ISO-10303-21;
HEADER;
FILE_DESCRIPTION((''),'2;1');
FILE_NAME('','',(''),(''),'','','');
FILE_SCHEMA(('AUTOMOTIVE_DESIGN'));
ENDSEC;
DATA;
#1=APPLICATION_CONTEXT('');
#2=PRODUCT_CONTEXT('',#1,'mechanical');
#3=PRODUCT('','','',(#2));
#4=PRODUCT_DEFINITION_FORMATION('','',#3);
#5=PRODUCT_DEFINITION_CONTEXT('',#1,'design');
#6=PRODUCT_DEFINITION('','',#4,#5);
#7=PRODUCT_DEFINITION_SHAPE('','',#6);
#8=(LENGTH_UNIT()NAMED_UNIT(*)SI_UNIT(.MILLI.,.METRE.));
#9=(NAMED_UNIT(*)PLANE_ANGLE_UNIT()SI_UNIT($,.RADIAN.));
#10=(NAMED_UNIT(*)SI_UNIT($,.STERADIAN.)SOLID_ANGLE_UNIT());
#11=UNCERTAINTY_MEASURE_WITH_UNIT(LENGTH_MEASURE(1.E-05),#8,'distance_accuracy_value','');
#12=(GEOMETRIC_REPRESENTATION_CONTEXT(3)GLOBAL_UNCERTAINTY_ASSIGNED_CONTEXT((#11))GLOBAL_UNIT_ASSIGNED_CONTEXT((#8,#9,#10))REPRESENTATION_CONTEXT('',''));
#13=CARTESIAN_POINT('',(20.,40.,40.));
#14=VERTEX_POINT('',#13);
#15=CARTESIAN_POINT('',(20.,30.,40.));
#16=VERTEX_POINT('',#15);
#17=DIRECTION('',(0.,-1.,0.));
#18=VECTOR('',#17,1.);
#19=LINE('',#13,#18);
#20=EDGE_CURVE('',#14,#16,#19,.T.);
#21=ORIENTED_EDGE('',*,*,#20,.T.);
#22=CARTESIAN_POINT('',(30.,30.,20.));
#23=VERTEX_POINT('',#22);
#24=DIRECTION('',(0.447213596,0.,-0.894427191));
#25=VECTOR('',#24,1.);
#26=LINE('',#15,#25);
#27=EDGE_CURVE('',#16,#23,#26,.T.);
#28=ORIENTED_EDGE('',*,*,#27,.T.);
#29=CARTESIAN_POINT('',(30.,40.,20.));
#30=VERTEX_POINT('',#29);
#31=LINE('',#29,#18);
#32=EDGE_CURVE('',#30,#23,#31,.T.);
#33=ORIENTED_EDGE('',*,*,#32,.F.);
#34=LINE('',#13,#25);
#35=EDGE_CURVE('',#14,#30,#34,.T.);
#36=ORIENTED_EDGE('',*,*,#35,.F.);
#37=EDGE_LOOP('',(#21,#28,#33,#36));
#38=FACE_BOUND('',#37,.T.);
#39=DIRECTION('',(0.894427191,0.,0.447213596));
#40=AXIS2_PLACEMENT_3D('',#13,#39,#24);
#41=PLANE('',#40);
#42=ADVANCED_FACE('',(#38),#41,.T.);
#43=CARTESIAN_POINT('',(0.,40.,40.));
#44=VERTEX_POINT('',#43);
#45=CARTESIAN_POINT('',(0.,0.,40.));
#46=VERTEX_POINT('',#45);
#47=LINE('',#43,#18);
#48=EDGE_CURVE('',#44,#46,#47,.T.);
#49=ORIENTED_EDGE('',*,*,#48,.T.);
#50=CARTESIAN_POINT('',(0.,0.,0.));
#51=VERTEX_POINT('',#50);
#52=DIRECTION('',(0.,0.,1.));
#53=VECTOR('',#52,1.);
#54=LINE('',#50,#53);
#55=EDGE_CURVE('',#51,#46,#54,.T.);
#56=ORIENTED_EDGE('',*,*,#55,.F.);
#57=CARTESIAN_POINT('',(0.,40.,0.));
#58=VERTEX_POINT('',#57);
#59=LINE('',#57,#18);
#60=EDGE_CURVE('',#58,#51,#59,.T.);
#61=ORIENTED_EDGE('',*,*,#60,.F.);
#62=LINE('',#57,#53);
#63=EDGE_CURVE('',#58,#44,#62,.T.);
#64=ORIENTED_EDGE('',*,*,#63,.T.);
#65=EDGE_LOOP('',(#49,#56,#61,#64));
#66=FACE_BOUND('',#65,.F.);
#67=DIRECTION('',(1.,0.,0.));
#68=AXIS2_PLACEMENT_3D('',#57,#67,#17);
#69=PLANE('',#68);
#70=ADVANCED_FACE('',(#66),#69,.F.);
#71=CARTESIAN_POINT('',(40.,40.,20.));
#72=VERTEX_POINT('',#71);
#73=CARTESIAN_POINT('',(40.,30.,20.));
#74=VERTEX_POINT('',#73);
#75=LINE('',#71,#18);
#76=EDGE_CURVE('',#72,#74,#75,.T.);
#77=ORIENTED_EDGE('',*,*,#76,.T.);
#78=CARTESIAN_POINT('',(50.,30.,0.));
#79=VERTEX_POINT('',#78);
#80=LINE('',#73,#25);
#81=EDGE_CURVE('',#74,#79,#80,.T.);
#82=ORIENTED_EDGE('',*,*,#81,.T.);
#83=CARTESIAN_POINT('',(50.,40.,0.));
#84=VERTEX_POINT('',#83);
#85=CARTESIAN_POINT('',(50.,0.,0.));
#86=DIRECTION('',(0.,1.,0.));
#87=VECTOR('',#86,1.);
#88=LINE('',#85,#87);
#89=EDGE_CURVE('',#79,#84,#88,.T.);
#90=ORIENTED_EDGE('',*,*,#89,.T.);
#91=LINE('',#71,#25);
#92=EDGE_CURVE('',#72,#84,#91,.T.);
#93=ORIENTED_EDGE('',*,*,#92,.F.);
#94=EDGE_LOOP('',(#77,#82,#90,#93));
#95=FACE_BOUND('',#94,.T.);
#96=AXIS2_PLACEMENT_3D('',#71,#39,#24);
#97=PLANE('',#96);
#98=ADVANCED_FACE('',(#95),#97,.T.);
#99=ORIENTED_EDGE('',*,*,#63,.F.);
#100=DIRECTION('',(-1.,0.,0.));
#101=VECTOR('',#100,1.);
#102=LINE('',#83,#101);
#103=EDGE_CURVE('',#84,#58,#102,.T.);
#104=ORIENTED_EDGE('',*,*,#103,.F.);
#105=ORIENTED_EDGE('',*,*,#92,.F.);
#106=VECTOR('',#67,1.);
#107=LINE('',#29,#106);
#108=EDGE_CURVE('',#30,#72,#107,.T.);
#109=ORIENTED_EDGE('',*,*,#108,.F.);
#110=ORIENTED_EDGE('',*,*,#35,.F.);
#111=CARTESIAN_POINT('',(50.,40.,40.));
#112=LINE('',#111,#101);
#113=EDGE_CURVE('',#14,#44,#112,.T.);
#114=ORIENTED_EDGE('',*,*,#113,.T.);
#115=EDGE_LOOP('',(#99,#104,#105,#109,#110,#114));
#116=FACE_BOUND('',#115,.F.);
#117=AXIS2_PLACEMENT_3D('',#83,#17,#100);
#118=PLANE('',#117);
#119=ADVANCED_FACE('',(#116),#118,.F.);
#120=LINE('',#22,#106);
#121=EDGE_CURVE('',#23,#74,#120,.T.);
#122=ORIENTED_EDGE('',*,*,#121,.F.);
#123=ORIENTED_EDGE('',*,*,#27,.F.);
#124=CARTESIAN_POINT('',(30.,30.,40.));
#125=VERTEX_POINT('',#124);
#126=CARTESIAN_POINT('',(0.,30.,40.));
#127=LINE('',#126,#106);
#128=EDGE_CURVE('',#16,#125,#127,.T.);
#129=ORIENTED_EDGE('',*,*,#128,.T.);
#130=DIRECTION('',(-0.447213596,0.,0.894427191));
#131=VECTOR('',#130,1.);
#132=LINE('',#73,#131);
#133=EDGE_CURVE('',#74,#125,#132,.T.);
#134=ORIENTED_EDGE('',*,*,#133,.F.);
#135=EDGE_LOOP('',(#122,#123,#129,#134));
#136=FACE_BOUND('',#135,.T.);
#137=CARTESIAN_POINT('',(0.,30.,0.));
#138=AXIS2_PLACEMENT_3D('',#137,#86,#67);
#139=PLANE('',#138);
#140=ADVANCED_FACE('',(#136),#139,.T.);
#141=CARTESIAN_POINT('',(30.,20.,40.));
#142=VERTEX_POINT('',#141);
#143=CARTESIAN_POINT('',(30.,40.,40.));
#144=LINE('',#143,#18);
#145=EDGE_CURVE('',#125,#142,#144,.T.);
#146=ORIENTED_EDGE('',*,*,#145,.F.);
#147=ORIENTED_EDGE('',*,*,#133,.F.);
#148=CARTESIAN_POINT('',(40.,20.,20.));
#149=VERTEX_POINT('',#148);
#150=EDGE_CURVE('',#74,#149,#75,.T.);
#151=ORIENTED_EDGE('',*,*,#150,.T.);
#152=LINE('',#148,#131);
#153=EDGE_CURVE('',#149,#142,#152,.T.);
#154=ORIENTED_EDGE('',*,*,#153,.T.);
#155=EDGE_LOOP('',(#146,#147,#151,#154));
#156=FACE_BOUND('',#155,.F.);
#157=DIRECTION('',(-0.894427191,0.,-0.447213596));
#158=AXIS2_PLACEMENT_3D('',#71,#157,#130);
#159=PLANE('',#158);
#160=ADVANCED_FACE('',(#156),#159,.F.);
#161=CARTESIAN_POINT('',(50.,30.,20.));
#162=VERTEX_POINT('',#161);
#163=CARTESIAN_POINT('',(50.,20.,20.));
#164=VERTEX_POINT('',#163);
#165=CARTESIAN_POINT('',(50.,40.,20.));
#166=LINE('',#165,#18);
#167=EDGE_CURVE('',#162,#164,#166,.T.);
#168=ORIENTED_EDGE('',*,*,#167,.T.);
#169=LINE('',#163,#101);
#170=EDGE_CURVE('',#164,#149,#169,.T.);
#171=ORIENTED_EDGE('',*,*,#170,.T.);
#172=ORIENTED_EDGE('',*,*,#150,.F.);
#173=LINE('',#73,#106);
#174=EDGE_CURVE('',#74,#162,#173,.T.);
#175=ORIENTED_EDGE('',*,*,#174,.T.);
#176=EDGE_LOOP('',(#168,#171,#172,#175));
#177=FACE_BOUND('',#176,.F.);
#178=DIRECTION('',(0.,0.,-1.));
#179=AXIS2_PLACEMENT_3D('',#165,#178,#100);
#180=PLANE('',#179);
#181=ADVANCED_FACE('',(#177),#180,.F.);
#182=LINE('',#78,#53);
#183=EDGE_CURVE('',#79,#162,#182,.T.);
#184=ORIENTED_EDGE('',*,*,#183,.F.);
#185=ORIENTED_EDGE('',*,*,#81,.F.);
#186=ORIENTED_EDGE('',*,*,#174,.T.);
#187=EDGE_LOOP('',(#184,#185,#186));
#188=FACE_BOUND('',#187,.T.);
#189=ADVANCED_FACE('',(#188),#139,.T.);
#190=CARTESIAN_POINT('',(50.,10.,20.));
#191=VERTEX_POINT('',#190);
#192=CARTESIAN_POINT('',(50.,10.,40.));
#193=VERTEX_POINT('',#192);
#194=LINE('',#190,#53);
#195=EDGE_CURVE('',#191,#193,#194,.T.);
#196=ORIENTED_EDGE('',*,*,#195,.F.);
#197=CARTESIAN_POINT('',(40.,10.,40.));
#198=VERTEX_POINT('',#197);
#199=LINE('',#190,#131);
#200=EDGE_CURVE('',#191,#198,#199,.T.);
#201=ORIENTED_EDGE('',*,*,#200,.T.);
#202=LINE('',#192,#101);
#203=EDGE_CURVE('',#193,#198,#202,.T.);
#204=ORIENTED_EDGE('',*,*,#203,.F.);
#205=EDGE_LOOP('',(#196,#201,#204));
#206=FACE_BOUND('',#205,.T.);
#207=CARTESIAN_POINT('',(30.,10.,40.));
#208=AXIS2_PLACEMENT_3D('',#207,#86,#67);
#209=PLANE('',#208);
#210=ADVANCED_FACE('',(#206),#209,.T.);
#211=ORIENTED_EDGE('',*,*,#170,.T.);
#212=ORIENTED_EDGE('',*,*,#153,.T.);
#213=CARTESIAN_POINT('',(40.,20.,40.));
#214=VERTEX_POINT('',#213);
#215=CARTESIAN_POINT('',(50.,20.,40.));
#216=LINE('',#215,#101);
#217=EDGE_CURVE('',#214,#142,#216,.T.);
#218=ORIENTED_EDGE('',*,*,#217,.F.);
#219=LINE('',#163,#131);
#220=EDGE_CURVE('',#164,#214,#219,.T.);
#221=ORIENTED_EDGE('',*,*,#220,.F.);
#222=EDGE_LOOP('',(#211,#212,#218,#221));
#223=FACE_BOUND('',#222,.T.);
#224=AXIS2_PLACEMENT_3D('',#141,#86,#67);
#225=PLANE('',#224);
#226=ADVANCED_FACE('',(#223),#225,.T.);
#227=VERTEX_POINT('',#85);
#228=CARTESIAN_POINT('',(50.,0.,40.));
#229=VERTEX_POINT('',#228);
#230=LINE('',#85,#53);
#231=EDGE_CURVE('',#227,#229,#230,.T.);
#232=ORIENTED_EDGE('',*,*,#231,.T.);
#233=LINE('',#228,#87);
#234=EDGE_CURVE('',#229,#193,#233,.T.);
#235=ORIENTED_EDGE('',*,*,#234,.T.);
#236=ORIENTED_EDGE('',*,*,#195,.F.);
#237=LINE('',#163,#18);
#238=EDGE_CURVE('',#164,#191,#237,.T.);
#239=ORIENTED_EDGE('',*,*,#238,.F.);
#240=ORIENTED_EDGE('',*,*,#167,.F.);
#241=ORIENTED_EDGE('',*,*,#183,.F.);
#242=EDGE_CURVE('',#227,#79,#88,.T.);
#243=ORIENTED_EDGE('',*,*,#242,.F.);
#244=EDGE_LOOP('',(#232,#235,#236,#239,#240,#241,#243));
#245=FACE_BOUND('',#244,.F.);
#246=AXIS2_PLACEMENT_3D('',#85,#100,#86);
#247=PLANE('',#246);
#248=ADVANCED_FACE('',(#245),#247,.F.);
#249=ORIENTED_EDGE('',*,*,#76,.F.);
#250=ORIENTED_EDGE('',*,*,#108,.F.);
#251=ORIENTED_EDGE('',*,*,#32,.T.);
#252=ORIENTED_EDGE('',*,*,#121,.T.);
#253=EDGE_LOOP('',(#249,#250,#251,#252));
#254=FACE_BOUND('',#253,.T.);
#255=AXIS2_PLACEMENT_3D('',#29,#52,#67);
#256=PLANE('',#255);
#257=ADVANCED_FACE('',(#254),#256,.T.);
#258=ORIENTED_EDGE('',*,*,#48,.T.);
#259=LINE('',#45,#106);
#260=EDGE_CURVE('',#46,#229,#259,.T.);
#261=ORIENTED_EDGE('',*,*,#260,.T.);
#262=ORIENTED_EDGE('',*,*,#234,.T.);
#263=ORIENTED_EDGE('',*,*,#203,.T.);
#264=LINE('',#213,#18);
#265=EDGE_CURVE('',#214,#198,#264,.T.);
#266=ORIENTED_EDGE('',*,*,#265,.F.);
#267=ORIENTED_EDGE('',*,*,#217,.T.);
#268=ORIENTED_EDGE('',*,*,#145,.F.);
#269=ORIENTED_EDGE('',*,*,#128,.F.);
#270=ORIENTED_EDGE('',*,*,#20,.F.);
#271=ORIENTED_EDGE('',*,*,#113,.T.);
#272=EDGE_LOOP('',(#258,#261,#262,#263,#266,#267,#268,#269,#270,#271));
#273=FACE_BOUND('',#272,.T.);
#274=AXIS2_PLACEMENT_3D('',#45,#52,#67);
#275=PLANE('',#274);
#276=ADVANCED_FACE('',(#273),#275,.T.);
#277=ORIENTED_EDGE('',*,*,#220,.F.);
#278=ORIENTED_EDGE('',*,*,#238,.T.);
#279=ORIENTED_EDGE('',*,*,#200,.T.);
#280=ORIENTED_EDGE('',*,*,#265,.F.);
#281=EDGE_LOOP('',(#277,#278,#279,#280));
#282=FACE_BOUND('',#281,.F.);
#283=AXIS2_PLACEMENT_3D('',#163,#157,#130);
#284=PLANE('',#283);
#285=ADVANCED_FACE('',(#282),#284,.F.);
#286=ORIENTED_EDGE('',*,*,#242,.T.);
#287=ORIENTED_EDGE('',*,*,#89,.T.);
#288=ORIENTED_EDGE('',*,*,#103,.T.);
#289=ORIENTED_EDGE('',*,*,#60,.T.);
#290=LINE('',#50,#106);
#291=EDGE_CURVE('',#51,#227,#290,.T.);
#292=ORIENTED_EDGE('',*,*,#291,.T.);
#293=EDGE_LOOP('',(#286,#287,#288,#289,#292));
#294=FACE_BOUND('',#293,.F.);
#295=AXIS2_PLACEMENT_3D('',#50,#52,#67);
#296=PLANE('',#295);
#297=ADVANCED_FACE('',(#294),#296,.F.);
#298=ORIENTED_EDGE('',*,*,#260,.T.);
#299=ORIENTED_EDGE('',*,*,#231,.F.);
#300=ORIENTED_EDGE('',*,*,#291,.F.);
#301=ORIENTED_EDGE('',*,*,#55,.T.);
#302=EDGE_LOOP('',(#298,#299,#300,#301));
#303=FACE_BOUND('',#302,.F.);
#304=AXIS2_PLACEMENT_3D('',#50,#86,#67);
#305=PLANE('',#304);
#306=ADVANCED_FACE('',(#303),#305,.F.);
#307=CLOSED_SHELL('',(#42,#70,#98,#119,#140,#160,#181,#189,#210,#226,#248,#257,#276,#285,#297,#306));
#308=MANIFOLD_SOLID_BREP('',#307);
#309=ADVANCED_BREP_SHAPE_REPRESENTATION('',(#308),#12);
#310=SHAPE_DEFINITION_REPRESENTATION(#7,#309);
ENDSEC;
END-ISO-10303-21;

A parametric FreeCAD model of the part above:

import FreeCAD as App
import Part
import Sketcher
Q = App.Units.Quantity


def add_polygon(sketch, points):
    """Adds a closed chain of lines whose ends are joined by coincident constraints."""
    first, n = sketch.GeometryCount, len(points)
    for a, b in zip(points, points[1:] + points[:1]):
        sketch.addGeometry(Part.LineSegment(App.Vector(*a, 0), App.Vector(*b, 0)), False)
    for i in range(n):
        sketch.addConstraint(Sketcher.Constraint("Coincident", first + i, 2, first + (i + 1) % n, 1))

doc = App.newDocument("Part")
body = doc.addObject("PartDesign::Body", "Body")

# Sketch on XY plane
sketch1 = body.newObject("Sketcher::SketchObject", "Sketch")
sketch1.AttachmentSupport = (doc.getObject("XY_Plane"), [""])
sketch1.MapMode = "FlatFace"
add_polygon(sketch1, [(0, 40), (0, 0), (50, 0), (50, 40)])  # lines 0-3
sketch1.addConstraint([
    Sketcher.Constraint("Vertical", 0),
    Sketcher.Constraint("Horizontal", 1),
    Sketcher.Constraint("Vertical", 2),
    Sketcher.Constraint("Horizontal", 3),
    Sketcher.Constraint("Coincident", 0, 2, -1, 1),
    Sketcher.Constraint("DistanceX", 1, 1, 1, 2, Q("50 mm")),
    Sketcher.Constraint("DistanceY", 0, 2, 0, 1, Q("40 mm")),
])
pad1 = body.newObject("PartDesign::Pad", "Pad")
pad1.Profile = sketch1
pad1.Length = 40

# Sketch on XZ plane
sketch2 = body.newObject("Sketcher::SketchObject", "Sketch001")
sketch2.AttachmentSupport = (doc.getObject("XZ_Plane"), [""])
sketch2.MapMode = "FlatFace"
sketch2.AttachmentOffset = App.Placement(App.Vector(0, 0, -40), App.Rotation())
add_polygon(sketch2, [(50, 20), (50, 0), (40, 20)])  # lines 0-2
add_polygon(sketch2, [(30, 40), (40, 20), (30, 20), (20, 40)])  # lines 3-6
sketch2.addConstraint([
    Sketcher.Constraint("Vertical", 0),
    Sketcher.Constraint("Horizontal", 2),
    Sketcher.Constraint("Horizontal", 4),
    Sketcher.Constraint("Horizontal", 6),
    Sketcher.Constraint("Coincident", 3, 2, 1, 2),
    Sketcher.Constraint("PointOnObject", 0, 2, -1),
    Sketcher.Constraint("Parallel", 1, 3),
    Sketcher.Constraint("Parallel", 3, 5),
    Sketcher.Constraint("Vertical", 4, 2, 6, 2),
    Sketcher.Constraint("Equal", 2, 4),
    Sketcher.Constraint("DistanceX", 2, 1, 2, 2, Q("10 mm")),
    Sketcher.Constraint("DistanceY", 0, 2, 0, 1, Q("20 mm")),
    Sketcher.Constraint("DistanceX", -1, 1, 5, 2, Q("20 mm")),
])
pocket1 = body.newObject("PartDesign::Pocket", "Pocket")
pocket1.Profile = sketch2
pocket1.Length = 10
pocket1.Reversed = True

# Sketch on XZ plane
sketch3 = body.newObject("Sketcher::SketchObject", "Sketch002")
sketch3.AttachmentSupport = (doc.getObject("XZ_Plane"), [""])
sketch3.MapMode = "FlatFace"
sketch3.AttachmentOffset = App.Placement(App.Vector(0, 0, -40), App.Rotation())
add_polygon(sketch3, [(50, 40), (50, 20), (40, 20), (30, 40)])  # lines 0-3
sketch3.addConstraint([
    Sketcher.Constraint("Vertical", 0),
    Sketcher.Constraint("Horizontal", 1),
    Sketcher.Constraint("Horizontal", 3),
    Sketcher.Constraint("Equal", 3, 0),
    Sketcher.Constraint("DistanceX", 1, 2, 1, 1, Q("10 mm")),
    Sketcher.Constraint("DistanceX", 3, 1, 3, 2, Q("20 mm")),
    Sketcher.Constraint("DistanceX", -1, 1, 0, 2, Q("50 mm")),
    Sketcher.Constraint("DistanceY", -1, 1, 0, 2, Q("20 mm")),
])
pocket2 = body.newObject("PartDesign::Pocket", "Pocket001")
pocket2.Profile = sketch3
pocket2.Length = 20
pocket2.Reversed = True

# Sketch on XZ plane
sketch4 = body.newObject("Sketcher::SketchObject", "Sketch003")
sketch4.AttachmentSupport = (doc.getObject("XZ_Plane"), [""])
sketch4.MapMode = "FlatFace"
sketch4.AttachmentOffset = App.Placement(App.Vector(0, 0, -20), App.Rotation())
add_polygon(sketch4, [(50, 40), (50, 20), (40, 40)])  # lines 0-2
sketch4.addConstraint([
    Sketcher.Constraint("Vertical", 0),
    Sketcher.Constraint("Horizontal", 2),
    Sketcher.Constraint("DistanceX", 2, 1, 2, 2, Q("10 mm")),
    Sketcher.Constraint("DistanceY", 0, 2, 0, 1, Q("20 mm")),
    Sketcher.Constraint("DistanceX", -1, 1, 0, 2, Q("50 mm")),
    Sketcher.Constraint("DistanceY", -1, 1, 0, 2, Q("20 mm")),
])
pocket3 = body.newObject("PartDesign::Pocket", "Pocket002")
pocket3.Profile = sketch4
pocket3.Length = 10
pocket3.Reversed = True

doc.recompute()
